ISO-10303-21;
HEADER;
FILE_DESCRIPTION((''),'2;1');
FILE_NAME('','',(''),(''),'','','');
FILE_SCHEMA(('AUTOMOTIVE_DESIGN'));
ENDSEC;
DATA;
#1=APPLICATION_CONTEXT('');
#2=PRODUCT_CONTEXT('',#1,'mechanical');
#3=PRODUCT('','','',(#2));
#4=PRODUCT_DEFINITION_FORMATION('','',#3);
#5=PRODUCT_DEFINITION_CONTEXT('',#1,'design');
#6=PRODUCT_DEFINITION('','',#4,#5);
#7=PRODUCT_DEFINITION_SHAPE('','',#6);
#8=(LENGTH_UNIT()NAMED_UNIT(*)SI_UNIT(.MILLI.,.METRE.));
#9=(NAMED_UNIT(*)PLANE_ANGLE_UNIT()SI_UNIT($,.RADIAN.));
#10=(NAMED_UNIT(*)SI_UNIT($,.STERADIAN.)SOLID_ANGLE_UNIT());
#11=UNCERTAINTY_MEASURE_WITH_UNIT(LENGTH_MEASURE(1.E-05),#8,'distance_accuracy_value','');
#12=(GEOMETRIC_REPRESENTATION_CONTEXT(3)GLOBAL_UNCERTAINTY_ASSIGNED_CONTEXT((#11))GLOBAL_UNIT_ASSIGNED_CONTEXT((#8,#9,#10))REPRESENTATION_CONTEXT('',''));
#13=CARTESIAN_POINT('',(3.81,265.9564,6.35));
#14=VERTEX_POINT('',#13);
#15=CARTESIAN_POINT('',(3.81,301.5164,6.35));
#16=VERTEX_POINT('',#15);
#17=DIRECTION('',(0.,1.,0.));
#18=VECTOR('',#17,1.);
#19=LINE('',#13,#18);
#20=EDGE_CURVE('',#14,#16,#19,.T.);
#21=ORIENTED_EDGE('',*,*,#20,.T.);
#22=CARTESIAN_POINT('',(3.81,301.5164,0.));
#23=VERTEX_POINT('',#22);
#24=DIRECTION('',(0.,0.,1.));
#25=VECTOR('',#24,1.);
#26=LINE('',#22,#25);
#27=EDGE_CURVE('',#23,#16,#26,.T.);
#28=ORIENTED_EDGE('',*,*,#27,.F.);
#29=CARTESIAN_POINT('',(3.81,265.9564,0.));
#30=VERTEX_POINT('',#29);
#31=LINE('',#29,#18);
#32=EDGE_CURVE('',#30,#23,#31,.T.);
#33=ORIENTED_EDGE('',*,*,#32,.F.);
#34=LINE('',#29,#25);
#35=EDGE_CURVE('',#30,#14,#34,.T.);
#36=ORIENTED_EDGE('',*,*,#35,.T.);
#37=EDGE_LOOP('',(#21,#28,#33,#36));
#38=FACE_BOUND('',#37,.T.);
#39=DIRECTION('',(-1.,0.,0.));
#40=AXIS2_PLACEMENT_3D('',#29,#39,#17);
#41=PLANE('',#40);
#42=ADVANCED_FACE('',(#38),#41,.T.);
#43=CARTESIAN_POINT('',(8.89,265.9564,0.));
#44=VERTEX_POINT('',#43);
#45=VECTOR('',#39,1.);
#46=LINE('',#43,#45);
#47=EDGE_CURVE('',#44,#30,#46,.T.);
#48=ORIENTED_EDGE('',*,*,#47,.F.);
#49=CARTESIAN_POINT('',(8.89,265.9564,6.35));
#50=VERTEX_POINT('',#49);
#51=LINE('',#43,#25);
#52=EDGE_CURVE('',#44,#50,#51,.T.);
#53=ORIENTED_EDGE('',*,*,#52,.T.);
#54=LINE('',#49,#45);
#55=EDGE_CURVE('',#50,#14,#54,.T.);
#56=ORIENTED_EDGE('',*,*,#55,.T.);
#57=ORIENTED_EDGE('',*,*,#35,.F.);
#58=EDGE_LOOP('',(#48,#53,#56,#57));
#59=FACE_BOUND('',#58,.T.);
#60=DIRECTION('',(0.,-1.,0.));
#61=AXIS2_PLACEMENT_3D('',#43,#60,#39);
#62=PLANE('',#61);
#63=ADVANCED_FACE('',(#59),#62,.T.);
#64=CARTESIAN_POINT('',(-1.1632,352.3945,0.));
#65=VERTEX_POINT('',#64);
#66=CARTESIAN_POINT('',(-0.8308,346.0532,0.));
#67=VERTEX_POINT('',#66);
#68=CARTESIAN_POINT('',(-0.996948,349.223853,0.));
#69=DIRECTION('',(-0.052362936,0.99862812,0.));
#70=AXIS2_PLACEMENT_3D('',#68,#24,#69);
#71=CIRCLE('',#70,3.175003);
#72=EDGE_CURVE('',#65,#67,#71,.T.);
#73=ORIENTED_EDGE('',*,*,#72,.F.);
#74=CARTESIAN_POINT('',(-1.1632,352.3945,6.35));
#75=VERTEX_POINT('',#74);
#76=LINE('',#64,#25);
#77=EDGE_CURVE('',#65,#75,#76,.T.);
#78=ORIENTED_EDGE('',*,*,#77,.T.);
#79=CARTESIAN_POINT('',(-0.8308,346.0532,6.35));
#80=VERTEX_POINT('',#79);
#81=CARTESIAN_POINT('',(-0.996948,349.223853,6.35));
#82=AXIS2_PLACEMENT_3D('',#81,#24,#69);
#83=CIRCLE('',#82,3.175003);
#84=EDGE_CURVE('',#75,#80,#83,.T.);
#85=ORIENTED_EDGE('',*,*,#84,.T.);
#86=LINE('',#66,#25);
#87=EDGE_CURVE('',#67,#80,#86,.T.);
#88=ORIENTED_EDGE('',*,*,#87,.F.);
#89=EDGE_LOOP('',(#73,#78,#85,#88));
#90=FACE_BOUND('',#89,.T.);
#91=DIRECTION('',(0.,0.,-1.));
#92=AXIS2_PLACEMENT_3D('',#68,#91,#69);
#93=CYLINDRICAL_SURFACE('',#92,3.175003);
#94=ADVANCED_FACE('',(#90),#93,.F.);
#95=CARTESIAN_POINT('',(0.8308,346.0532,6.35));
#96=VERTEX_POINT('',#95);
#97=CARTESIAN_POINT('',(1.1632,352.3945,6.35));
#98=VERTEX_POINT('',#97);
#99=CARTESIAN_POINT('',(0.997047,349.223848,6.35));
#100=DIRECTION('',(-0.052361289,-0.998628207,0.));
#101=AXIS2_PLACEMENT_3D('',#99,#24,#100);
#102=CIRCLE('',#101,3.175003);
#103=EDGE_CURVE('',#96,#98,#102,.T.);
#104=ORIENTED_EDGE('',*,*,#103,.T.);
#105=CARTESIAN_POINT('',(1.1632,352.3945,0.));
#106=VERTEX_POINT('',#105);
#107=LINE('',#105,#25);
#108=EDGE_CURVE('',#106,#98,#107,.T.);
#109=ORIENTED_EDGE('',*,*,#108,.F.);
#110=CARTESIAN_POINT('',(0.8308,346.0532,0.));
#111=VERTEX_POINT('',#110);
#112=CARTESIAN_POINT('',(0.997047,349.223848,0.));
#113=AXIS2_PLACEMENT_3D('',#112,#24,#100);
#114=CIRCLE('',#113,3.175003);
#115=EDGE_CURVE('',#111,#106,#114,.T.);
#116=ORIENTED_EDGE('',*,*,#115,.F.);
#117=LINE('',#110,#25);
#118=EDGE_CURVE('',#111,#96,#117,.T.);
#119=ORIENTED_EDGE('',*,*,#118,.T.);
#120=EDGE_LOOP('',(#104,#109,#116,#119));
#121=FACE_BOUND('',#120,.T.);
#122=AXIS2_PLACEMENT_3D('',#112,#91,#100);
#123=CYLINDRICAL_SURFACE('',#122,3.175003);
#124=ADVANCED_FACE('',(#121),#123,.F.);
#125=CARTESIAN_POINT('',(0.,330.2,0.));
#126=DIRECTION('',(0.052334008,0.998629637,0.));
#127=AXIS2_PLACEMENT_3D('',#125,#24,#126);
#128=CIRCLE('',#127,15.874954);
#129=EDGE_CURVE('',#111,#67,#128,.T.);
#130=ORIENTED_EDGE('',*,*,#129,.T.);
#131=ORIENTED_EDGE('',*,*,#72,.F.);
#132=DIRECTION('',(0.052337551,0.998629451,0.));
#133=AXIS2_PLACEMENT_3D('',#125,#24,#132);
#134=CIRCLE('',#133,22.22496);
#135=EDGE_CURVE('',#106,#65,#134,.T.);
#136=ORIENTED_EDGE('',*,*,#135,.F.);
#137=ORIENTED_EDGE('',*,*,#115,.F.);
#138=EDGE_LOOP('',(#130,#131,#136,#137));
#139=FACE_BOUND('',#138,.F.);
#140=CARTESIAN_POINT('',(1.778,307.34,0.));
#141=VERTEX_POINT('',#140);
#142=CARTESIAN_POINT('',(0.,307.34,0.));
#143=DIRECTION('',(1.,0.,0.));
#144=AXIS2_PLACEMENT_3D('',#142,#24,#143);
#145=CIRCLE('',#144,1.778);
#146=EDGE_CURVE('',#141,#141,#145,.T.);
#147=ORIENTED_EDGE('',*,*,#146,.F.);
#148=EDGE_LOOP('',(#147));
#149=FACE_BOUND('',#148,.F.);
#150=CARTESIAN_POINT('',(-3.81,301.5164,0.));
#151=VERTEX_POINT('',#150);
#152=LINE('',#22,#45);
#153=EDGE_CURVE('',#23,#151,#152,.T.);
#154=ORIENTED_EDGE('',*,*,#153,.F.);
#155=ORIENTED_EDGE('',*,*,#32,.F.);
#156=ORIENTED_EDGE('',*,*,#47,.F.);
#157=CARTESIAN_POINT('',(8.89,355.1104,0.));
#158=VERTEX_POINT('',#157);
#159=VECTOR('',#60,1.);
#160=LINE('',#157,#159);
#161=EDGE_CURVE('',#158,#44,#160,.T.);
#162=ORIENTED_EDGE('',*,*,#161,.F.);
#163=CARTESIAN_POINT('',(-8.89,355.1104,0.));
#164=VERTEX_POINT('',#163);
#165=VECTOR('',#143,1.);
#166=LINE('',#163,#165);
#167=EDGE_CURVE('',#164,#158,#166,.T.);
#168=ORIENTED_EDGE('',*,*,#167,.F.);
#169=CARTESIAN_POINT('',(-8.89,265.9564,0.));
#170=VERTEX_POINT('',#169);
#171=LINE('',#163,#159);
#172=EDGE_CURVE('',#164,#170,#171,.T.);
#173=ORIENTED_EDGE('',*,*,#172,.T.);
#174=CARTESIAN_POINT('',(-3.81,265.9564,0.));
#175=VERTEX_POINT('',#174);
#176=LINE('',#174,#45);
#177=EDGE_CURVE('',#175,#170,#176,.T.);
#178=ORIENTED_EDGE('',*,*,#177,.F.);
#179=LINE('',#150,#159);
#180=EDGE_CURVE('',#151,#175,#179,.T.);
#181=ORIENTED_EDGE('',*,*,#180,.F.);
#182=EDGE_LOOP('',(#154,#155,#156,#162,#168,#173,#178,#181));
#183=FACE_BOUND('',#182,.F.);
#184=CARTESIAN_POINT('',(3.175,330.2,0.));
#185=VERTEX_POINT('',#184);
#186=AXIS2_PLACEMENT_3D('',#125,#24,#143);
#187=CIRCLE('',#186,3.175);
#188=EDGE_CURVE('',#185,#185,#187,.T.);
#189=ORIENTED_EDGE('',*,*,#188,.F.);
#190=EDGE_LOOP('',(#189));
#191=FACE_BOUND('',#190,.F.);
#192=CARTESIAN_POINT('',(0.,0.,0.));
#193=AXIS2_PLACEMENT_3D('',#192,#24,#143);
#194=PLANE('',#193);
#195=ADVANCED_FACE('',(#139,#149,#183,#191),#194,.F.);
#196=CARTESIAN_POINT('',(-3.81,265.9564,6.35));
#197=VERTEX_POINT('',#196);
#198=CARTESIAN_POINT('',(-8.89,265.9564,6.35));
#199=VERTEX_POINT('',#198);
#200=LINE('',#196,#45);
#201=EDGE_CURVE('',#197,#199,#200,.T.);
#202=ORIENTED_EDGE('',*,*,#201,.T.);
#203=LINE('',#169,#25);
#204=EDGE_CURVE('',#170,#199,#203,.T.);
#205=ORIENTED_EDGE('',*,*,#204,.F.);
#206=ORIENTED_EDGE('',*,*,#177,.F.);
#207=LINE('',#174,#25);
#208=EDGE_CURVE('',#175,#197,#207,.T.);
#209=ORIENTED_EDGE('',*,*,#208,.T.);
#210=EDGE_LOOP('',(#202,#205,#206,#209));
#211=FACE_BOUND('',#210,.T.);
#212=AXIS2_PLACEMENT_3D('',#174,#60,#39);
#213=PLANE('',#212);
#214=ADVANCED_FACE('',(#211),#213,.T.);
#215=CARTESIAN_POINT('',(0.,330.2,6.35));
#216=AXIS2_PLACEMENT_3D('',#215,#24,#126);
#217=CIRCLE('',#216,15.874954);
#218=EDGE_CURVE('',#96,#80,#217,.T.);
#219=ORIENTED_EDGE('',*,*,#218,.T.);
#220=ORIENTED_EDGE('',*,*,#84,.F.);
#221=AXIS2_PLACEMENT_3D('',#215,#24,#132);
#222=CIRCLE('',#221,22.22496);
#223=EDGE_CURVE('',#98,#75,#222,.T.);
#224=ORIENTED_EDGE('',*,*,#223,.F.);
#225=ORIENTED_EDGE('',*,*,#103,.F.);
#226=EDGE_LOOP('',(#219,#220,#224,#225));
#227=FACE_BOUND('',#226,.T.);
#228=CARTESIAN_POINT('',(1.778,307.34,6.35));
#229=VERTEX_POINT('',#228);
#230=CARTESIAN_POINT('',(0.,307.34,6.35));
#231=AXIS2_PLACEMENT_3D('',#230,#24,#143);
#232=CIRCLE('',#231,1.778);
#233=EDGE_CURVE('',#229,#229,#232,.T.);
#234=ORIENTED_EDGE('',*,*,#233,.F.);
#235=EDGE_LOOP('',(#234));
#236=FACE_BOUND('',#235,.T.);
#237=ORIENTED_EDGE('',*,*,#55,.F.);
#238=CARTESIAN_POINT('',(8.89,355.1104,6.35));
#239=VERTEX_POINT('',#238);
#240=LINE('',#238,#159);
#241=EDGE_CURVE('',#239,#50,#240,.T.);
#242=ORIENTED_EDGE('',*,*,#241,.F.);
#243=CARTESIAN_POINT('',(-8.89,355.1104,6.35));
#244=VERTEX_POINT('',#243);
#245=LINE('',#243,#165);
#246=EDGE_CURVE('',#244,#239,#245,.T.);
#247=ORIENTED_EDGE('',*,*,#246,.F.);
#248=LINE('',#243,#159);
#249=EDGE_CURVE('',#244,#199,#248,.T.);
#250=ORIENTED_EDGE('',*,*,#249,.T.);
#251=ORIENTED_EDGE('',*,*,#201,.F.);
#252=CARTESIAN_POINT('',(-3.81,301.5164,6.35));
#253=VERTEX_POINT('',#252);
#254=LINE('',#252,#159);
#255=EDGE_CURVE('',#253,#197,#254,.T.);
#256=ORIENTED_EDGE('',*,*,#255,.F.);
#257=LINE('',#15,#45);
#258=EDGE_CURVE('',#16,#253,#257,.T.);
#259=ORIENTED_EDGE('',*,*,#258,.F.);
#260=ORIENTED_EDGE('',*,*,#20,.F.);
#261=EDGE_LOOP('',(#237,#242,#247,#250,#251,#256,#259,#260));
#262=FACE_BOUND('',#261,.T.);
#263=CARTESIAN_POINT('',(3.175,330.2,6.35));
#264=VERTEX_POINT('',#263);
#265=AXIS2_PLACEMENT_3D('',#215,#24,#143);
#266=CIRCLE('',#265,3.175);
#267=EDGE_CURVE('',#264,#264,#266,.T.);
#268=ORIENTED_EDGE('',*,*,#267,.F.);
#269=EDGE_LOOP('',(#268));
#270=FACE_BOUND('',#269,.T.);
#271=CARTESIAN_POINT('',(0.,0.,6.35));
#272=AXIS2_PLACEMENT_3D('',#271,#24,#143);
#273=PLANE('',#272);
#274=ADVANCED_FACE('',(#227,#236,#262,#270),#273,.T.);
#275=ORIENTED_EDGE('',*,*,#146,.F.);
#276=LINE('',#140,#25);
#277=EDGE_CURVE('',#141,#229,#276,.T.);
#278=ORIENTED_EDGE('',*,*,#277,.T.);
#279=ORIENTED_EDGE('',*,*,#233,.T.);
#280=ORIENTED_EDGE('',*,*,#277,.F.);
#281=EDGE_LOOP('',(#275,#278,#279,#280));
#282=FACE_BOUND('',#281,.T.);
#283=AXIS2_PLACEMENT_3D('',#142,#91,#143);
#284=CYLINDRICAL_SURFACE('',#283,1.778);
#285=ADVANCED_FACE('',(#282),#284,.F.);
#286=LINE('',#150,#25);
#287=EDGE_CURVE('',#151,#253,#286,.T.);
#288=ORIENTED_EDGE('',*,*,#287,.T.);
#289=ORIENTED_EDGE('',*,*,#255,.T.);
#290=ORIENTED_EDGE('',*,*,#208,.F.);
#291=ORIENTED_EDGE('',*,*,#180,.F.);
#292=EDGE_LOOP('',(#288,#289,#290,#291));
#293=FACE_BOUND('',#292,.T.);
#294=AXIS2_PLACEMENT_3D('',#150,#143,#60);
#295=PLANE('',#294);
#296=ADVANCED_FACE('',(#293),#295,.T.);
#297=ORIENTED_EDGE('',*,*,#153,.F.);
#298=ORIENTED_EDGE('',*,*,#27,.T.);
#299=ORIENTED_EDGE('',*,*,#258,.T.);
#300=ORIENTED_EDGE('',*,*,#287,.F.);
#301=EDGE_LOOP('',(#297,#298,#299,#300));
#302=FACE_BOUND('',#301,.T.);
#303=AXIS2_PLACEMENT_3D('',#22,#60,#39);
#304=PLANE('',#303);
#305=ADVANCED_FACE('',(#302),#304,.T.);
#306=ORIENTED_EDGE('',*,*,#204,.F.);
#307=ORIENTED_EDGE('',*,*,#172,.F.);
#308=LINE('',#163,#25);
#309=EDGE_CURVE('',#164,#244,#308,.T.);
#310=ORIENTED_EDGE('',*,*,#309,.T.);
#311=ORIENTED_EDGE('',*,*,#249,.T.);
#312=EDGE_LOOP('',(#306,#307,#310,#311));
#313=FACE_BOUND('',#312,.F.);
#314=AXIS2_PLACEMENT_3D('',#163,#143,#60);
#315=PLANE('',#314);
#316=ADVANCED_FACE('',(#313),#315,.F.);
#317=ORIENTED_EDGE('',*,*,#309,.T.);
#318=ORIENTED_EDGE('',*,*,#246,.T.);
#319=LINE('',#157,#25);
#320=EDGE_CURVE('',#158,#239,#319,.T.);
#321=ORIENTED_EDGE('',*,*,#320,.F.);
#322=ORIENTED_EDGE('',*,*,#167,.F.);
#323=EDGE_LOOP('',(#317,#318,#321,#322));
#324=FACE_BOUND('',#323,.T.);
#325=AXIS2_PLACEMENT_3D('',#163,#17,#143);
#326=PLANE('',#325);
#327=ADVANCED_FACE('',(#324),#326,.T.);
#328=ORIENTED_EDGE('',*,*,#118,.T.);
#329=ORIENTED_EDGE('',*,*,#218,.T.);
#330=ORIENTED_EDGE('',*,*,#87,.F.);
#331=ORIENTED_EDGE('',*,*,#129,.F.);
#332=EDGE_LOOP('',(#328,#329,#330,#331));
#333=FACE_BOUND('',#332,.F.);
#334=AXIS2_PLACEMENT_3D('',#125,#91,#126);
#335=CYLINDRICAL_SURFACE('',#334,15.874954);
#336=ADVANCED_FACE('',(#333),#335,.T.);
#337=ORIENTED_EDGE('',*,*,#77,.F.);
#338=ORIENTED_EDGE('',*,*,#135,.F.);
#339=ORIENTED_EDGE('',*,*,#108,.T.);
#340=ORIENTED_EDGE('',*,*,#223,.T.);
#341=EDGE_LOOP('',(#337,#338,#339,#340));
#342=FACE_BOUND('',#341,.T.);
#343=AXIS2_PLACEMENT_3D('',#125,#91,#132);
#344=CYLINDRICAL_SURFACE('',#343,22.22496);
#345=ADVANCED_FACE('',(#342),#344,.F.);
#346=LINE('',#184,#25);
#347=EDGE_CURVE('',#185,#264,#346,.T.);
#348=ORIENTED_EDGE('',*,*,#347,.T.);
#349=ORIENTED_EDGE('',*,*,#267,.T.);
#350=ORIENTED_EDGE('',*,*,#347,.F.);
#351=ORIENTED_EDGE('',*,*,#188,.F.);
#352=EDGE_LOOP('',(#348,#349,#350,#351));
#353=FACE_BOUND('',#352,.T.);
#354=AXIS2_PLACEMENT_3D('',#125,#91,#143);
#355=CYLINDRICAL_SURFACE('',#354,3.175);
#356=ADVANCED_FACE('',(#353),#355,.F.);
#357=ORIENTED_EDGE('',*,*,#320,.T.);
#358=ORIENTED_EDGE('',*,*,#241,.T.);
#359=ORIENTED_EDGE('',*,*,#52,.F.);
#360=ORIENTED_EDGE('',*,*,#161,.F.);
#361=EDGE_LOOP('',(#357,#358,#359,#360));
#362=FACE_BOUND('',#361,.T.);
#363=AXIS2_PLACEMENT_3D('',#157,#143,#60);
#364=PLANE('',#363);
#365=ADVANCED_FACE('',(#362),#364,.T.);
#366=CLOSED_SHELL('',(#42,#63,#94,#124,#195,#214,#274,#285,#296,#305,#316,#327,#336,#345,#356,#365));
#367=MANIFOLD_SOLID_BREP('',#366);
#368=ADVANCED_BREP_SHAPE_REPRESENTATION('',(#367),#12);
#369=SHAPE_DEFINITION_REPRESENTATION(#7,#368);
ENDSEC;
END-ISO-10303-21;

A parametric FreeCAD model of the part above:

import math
import FreeCAD as App
import Part
import Sketcher
from FreeCAD import Vector
Q = App.Units.Quantity

doc = App.newDocument("Part")
body = doc.addObject("PartDesign::Body", "Body")

# Sketch on XY plane
sketch1 = body.newObject("Sketcher::SketchObject", "Sketch")
sketch1.AttachmentSupport = (doc.getObject("XY_Plane"), [""])
sketch1.MapMode = "FlatFace"
sketch1.addGeometry(Part.LineSegment(Vector(8.9, 355.1, 0), Vector(-8.9, 355.1, 0)), False)
sketch1.addGeometry(Part.LineSegment(Vector(-8.9, 355.1, 0), Vector(-8.9, 266, 0)), False)
sketch1.addGeometry(Part.LineSegment(Vector(-8.9, 266, 0), Vector(-3.8, 266, 0)), False)
sketch1.addGeometry(Part.LineSegment(Vector(-3.8, 266, 0), Vector(-3.8, 301.5, 0)), False)
sketch1.addGeometry(Part.LineSegment(Vector(-3.8, 301.5, 0), Vector(3.8, 301.5, 0)), False)
sketch1.addGeometry(Part.LineSegment(Vector(3.8, 301.5, 0), Vector(3.8, 266, 0)), False)
sketch1.addGeometry(Part.LineSegment(Vector(3.8, 266, 0), Vector(8.9, 266, 0)), False)
sketch1.addGeometry(Part.LineSegment(Vector(8.9, 266, 0), Vector(8.9, 355.1, 0)), False)
sketch1.addGeometry(Part.Circle(Vector(0, 307.3, 0), Vector(0, 0, 1), 1.8), False)
sketch1.addGeometry(Part.Circle(Vector(0, 330.2, 0), Vector(0, 0, 1), 3.2), False)
sketch1.addGeometry(Part.ArcOfCircle(Part.Circle(Vector(1, 349.2, 0), Vector(0, 0, 1), 3.2), math.radians(-93), math.radians(87)), False)
sketch1.addGeometry(Part.ArcOfCircle(Part.Circle(Vector(0, 330.2, 0), Vector(0, 0, 1), 15.9), math.radians(87), math.radians(93)), False)
sketch1.addGeometry(Part.ArcOfCircle(Part.Circle(Vector(-1, 349.2, 0), Vector(0, 0, 1), 3.2), math.radians(93), math.radians(273)), False)
sketch1.addGeometry(Part.ArcOfCircle(Part.Circle(Vector(0, 330.2, 0), Vector(0, 0, 1), 22.2), math.radians(87), math.radians(93)), False)
sketch1.addConstraint(Sketcher.Constraint("Coincident", 0, 2, 1, 1))
sketch1.addConstraint(Sketcher.Constraint("Coincident", 1, 2, 2, 1))
sketch1.addConstraint(Sketcher.Constraint("Coincident", 2, 2, 3, 1))
sketch1.addConstraint(Sketcher.Constraint("Coincident", 3, 2, 4, 1))
sketch1.addConstraint(Sketcher.Constraint("Coincident", 4, 2, 5, 1))
sketch1.addConstraint(Sketcher.Constraint("Coincident", 5, 2, 6, 1))
sketch1.addConstraint(Sketcher.Constraint("Coincident", 6, 2, 7, 1))
sketch1.addConstraint(Sketcher.Constraint("Coincident", 7, 2, 0, 1))
sketch1.addConstraint(Sketcher.Constraint("Tangent", 10, 1, 11, 1))
sketch1.addConstraint(Sketcher.Constraint("Tangent", 11, 2, 12, 2))
sketch1.addConstraint(Sketcher.Constraint("Tangent", 12, 1, 13, 2))
sketch1.addConstraint(Sketcher.Constraint("Tangent", 13, 1, 10, 2))
sketch1.addConstraint(Sketcher.Constraint("Horizontal", 0))
sketch1.addConstraint(Sketcher.Constraint("Vertical", 1))
sketch1.addConstraint(Sketcher.Constraint("Horizontal", 2))
sketch1.addConstraint(Sketcher.Constraint("Vertical", 3))
sketch1.addConstraint(Sketcher.Constraint("Horizontal", 4))
sketch1.addConstraint(Sketcher.Constraint("Vertical", 5))
sketch1.addConstraint(Sketcher.Constraint("Horizontal", 6))
sketch1.addConstraint(Sketcher.Constraint("Vertical", 7))
sketch1.addConstraint(Sketcher.Constraint("Coincident", 11, 3, 9, 3))
sketch1.addConstraint(Sketcher.Constraint("Coincident", 13, 3, 9, 3))
sketch1.addConstraint(Sketcher.Constraint("Equal", 9, 10))
sketch1.addConstraint(Sketcher.Constraint("Symmetric", 10, 3, 12, 3, -2))
sketch1.addConstraint(Sketcher.Constraint("Symmetric", 2, 2, 5, 2, -2))
sketch1.addConstraint(Sketcher.Constraint("PointOnObject", 8, 3, -2))
sketch1.addConstraint(Sketcher.Constraint("Equal", 2, 6))
sketch1.addConstraint(Sketcher.Constraint("Diameter", 8, Q("0.14 in")))
sketch1.addConstraint(Sketcher.Constraint("Diameter", 9, Q("0.25 in")))
sketch1.addConstraint(Sketcher.Constraint("DistanceX", 0, 2, 0, 1, Q("0.7 in")))
sketch1.addConstraint(Sketcher.Constraint("DistanceX", 2, 1, 2, 2, Q("0.2 in")))
sketch1.addConstraint(Sketcher.Constraint("DistanceY", 3, 1, 3, 2, Q("1.4 in")))
sketch1.addConstraint(Sketcher.Constraint("Radius", 11, Q("0.625 in")))
sketch1.addConstraint(Sketcher.Constraint("DistanceY", 1, 2, 1, 1, Q("3.51 in")))
sketch1.addConstraint(Sketcher.Constraint("DistanceY", -1, 1, 9, 3, Q("13 in")))
sketch1.addConstraint(Sketcher.Constraint("DistanceY", -1, 1, 8, 3, Q("12.1 in")))
sketch1.addConstraint(Sketcher.Constraint("DistanceX", -1, 1, 10, 1, Q("0.0327 in")))
sketch1.addConstraint(Sketcher.Constraint("DistanceY", -1, 1, 0, 2, Q("355.1104 mm")))
pad1 = body.newObject("PartDesign::Pad", "Pad")
pad1.Profile = sketch1
pad1.Length = Q("0.25 in")

doc.recompute()
